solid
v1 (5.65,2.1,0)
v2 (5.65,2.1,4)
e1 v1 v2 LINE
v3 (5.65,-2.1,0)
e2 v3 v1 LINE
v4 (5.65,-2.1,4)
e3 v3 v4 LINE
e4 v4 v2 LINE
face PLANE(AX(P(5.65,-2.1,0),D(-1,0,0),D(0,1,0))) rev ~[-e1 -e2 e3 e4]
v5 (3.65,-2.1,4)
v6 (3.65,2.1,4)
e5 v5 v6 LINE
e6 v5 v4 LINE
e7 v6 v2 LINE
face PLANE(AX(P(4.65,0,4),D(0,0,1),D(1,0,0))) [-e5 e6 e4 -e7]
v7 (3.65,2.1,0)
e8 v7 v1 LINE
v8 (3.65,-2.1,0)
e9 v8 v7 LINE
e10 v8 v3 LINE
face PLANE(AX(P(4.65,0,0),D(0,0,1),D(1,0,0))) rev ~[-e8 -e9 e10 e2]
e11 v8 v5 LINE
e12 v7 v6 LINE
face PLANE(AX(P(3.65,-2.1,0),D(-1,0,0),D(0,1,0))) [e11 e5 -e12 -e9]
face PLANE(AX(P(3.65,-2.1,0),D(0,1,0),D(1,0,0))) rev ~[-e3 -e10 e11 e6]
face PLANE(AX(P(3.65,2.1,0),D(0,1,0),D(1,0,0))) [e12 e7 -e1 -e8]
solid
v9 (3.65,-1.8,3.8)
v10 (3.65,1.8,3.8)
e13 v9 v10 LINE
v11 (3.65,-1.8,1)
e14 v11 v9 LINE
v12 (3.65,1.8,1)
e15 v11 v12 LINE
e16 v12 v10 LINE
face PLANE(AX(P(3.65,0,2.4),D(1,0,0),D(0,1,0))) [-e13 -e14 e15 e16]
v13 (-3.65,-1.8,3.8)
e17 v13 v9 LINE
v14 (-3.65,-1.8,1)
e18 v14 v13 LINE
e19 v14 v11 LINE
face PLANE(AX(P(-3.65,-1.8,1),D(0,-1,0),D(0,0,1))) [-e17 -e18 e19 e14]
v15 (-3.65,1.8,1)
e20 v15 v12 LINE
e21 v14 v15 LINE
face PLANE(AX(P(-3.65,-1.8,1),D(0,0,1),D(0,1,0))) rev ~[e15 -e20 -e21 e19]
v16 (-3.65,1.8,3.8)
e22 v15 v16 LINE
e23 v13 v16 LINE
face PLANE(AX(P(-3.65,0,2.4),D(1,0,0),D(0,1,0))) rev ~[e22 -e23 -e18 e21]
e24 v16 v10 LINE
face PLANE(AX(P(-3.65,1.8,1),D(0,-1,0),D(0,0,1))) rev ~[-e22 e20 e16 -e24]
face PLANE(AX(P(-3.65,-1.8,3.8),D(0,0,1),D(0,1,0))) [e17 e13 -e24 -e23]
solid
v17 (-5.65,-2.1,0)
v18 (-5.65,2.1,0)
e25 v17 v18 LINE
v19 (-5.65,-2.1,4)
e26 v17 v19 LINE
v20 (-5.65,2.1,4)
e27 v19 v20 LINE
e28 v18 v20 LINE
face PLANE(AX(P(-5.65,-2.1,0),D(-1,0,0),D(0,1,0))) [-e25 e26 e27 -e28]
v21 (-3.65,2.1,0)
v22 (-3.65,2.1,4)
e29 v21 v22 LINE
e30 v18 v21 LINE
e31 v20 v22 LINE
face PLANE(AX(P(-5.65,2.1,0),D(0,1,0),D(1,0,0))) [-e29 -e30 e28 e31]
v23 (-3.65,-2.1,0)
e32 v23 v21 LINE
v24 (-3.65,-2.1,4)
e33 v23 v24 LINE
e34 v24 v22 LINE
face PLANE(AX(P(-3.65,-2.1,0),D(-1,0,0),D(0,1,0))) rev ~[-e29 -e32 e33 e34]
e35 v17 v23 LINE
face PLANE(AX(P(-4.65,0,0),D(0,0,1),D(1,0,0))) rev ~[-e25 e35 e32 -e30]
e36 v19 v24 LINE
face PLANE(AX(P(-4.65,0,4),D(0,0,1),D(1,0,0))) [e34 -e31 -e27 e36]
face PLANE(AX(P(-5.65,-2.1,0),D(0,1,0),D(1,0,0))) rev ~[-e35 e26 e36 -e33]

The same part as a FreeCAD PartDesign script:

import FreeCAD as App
import Part
import Sketcher

doc = App.newDocument("Part")
body = doc.addObject("PartDesign::Body", "Body")
body.AllowCompound = True

# Sketch on XY plane
sketch1 = body.newObject("Sketcher::SketchObject", "Sketch")
sketch1.AttachmentSupport = (doc.getObject("XY_Plane"), [""])
sketch1.MapMode = "FlatFace"
sketch1.addGeometry([
    Part.LineSegment(App.Vector(-5.7, 2.1, 0), App.Vector(-5.7, -2.1, 0)),  # 0
    Part.LineSegment(App.Vector(-5.7, -2.1, 0), App.Vector(-3.6, -2.1, 0)),  # 1
    Part.LineSegment(App.Vector(-3.6, -2.1, 0), App.Vector(-3.6, 2.1, 0)),  # 2
    Part.LineSegment(App.Vector(-3.6, 2.1, 0), App.Vector(-5.7, 2.1, 0)),  # 3
    Part.LineSegment(App.Vector(3.6, 2.1, 0), App.Vector(3.6, -2.1, 0)),  # 4
    Part.LineSegment(App.Vector(3.6, -2.1, 0), App.Vector(5.7, -2.1, 0)),  # 5
    Part.LineSegment(App.Vector(5.7, -2.1, 0), App.Vector(5.7, 2.1, 0)),  # 6
    Part.LineSegment(App.Vector(5.7, 2.1, 0), App.Vector(3.6, 2.1, 0)),  # 7
], False)
sketch1.addConstraint([
    Sketcher.Constraint("Coincident", 0, 2, 1, 1),
    Sketcher.Constraint("Coincident", 1, 2, 2, 1),
    Sketcher.Constraint("Coincident", 2, 2, 3, 1),
    Sketcher.Constraint("Coincident", 3, 2, 0, 1),
    Sketcher.Constraint("Coincident", 4, 2, 5, 1),
    Sketcher.Constraint("Coincident", 5, 2, 6, 1),
    Sketcher.Constraint("Coincident", 6, 2, 7, 1),
    Sketcher.Constraint("Coincident", 7, 2, 4, 1),
    Sketcher.Constraint("Vertical", 0),
    Sketcher.Constraint("Horizontal", 1),
    Sketcher.Constraint("Vertical", 2),
    Sketcher.Constraint("Horizontal", 3),
    Sketcher.Constraint("Vertical", 4),
    Sketcher.Constraint("Horizontal", 5),
    Sketcher.Constraint("Vertical", 6),
    Sketcher.Constraint("Horizontal", 7),
    Sketcher.Constraint("Symmetric", 2, 2, 4, 2, -1, 1),
    Sketcher.Constraint("Symmetric", 0, 2, 6, 2, -1, 1),
    Sketcher.Constraint("Horizontal", 1, 2, 4, 2),
    Sketcher.Constraint("DistanceX", 1, 1, 1, 2, 2.0),
    Sketcher.Constraint("DistanceY", 0, 2, 0, 1, 4.2),
    Sketcher.Constraint("DistanceX", 1, 2, 4, 2, 7.3),
])
pad1 = body.newObject("PartDesign::Pad", "Pad")
pad1.Profile = sketch1
pad1.Length = 4
body2 = doc.addObject("PartDesign::Body", "Body001")

# Sketch on YZ plane
sketch2 = body2.newObject("Sketcher::SketchObject", "Sketch001")
sketch2.AttachmentSupport = (doc.getObject("YZ_Plane001"), [""])
sketch2.MapMode = "FlatFace"
sketch2.AttachmentOffset = App.Placement(App.Vector(0, 0, -3.65), App.Rotation())
sketch2.addGeometry([
    Part.LineSegment(App.Vector(-1.8, 3.8, 0), App.Vector(-1.8, 1, 0)),
    Part.LineSegment(App.Vector(-1.8, 1, 0), App.Vector(1.8, 1, 0)),
    Part.LineSegment(App.Vector(1.8, 1, 0), App.Vector(1.8, 3.8, 0)),
    Part.LineSegment(App.Vector(1.8, 3.8, 0), App.Vector(-1.8, 3.8, 0)),
], False)
sketch2.addConstraint([
    Sketcher.Constraint("Coincident", 0, 2, 1, 1),
    Sketcher.Constraint("Coincident", 1, 2, 2, 1),
    Sketcher.Constraint("Coincident", 2, 2, 3, 1),
    Sketcher.Constraint("Coincident", 3, 2, 0, 1),
    Sketcher.Constraint("Vertical", 0),
    Sketcher.Constraint("Horizontal", 1),
    Sketcher.Constraint("Vertical", 2),
    Sketcher.Constraint("Horizontal", 3),
    Sketcher.Constraint("DistanceX", 1, 1, 1, 2, 3.6),
    Sketcher.Constraint("DistanceY", 0, 2, 0, 1, 2.8),
    Sketcher.Constraint("DistanceY", -1, 1, 0, 2, 1.0),
    Sketcher.Constraint("DistanceX", 0, 2, -1, 1, 1.8),
])
pad2 = body2.newObject("PartDesign::Pad", "Pad001")
pad2.Profile = sketch2
pad2.Length = 7.3

doc.recompute()
